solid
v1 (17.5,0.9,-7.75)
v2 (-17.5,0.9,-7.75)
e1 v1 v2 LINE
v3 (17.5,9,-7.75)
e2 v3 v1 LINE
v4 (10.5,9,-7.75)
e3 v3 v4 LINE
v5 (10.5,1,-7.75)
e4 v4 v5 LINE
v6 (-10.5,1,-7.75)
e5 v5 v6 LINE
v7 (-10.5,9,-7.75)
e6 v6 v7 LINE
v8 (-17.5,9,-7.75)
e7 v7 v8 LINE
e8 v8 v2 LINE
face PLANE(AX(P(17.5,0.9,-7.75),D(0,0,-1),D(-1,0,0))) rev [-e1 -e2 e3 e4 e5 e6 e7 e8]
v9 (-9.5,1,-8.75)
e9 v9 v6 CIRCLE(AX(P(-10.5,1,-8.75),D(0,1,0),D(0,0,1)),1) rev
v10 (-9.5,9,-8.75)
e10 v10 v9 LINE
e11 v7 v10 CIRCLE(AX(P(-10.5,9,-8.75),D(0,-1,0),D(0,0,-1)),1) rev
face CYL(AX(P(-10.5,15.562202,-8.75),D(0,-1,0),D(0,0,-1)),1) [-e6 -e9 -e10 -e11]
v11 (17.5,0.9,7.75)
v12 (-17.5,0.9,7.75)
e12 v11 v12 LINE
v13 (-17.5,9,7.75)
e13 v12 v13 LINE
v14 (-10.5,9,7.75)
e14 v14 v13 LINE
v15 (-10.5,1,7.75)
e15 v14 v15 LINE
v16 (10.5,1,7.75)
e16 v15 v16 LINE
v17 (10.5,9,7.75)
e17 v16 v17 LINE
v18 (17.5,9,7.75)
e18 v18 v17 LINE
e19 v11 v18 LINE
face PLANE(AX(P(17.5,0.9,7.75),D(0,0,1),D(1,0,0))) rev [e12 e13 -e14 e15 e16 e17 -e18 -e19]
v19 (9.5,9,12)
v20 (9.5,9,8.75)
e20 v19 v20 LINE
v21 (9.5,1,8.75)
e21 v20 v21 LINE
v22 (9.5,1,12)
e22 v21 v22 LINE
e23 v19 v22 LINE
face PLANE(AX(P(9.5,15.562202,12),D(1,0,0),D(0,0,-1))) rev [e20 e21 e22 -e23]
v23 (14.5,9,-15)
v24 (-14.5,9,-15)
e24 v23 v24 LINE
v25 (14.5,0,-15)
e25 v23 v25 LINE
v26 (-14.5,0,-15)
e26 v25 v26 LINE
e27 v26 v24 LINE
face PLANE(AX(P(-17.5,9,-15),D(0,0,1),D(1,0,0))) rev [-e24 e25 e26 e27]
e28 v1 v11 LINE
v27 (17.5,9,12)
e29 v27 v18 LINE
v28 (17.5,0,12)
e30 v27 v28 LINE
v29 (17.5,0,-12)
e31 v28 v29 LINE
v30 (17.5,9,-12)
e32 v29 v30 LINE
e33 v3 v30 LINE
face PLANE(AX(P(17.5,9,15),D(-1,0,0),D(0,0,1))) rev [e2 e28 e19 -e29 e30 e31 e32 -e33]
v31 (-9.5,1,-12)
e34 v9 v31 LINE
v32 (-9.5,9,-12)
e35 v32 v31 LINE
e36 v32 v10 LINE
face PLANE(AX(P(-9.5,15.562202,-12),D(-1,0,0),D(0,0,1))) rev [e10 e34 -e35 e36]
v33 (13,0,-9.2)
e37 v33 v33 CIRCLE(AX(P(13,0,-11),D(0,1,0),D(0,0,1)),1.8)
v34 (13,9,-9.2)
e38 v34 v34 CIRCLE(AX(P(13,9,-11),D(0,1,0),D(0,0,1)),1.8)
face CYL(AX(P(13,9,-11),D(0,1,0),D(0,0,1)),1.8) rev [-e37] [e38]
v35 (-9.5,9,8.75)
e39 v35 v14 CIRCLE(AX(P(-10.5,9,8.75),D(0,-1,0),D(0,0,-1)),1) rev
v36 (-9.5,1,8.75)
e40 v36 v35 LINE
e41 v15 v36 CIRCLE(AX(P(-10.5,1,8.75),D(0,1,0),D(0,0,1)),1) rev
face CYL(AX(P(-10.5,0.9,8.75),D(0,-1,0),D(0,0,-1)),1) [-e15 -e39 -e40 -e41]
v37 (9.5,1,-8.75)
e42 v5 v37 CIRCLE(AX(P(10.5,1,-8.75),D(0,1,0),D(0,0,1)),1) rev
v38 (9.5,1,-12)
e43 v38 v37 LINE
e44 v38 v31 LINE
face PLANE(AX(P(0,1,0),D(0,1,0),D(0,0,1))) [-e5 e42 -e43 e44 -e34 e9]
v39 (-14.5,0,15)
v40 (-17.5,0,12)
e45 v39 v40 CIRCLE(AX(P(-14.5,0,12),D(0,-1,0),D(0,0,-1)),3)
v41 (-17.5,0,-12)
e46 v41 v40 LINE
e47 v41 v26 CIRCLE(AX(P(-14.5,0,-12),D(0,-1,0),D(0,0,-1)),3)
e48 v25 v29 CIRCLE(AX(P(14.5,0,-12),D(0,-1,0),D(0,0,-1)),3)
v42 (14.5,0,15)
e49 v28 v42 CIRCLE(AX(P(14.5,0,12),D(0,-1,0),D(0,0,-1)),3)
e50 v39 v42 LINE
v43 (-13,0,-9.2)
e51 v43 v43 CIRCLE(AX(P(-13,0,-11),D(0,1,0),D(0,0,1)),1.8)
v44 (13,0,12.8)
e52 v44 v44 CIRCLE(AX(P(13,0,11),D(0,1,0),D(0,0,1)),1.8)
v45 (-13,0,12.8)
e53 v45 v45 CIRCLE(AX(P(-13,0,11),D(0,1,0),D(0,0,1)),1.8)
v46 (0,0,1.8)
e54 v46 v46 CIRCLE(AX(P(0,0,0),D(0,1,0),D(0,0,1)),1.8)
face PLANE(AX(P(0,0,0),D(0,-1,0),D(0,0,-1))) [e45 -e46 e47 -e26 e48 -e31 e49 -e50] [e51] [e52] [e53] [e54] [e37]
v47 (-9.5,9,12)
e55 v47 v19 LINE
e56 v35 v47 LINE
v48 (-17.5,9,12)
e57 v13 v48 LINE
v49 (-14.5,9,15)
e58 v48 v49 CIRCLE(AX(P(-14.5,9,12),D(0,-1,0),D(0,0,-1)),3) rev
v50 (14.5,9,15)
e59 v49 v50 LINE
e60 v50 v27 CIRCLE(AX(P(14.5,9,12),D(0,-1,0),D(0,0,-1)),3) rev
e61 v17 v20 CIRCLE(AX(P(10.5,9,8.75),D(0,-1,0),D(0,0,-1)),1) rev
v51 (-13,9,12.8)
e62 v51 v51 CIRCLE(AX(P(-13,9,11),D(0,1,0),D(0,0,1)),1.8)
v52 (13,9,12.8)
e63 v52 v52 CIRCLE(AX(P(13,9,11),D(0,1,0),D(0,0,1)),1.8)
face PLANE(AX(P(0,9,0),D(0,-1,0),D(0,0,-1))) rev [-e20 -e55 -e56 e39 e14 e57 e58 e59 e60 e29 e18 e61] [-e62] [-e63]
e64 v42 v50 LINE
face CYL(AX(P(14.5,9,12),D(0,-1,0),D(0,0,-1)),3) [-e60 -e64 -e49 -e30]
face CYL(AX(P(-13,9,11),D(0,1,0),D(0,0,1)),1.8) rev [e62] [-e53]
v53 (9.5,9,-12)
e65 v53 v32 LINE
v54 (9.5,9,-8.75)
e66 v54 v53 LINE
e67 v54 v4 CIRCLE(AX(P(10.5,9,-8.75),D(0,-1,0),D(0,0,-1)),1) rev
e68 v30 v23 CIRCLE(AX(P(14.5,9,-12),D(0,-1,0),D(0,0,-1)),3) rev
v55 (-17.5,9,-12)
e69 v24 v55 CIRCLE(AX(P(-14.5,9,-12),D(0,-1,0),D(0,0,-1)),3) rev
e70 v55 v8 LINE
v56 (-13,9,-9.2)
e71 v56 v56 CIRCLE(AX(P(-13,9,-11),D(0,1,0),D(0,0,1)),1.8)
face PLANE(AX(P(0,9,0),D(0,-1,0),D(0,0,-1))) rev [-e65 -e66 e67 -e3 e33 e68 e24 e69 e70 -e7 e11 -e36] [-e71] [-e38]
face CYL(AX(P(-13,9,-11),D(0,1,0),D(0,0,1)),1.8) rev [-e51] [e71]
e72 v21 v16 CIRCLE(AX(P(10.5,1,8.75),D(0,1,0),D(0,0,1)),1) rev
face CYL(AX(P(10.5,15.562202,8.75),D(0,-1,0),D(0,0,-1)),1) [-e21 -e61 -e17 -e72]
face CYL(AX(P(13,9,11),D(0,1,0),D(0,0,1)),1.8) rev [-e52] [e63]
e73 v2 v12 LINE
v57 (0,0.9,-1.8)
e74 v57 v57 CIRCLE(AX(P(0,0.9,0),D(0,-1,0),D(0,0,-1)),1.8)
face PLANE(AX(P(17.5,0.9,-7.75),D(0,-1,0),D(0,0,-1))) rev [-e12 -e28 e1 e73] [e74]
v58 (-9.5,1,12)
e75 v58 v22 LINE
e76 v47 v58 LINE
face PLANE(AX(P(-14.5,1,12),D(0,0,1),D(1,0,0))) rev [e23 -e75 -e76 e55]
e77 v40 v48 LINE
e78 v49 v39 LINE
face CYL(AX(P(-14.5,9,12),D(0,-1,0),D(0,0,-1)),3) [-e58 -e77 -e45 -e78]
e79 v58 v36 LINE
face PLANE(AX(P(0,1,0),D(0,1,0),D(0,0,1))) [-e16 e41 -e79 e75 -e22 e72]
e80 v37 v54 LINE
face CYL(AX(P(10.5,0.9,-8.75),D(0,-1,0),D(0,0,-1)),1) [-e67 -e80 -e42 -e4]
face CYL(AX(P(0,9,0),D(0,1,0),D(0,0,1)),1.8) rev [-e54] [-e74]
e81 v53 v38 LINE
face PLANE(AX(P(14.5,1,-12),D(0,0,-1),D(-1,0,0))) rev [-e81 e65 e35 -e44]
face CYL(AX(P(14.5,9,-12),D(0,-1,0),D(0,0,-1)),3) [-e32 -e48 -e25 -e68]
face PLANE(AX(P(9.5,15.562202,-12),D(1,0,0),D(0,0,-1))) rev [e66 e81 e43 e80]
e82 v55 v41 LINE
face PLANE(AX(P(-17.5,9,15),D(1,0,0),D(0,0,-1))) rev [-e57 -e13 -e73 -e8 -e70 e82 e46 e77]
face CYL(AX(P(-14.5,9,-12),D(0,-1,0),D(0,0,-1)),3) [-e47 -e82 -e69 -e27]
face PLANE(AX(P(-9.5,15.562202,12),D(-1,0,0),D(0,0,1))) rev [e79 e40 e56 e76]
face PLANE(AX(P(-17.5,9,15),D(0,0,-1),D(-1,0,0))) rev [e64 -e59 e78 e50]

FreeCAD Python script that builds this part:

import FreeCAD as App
import Part
import Sketcher
Q = App.Units.Quantity


def edges_at(feature, points):
    """Names of the edges that pass closest to the given points."""
    edges = feature.Shape.Edges
    near = lambda p: min(range(len(edges)), key=lambda i: edges[i].distToShape(Part.Vertex(*p))[0])
    return sorted({f"Edge{near(p) + 1}" for p in points})

doc = App.newDocument("Part")
body = doc.addObject("PartDesign::Body", "Body")

# Sketch on XZ plane
sketch1 = doc.addObject("Sketcher::SketchObject", "Sketch")
body.addObject(sketch1)
sketch1.AttachmentSupport = (doc.XZ_Plane, [""])
sketch1.MapMode = "FlatFace"
sketch1.addGeometry(Part.LineSegment(App.Vector(-18, -15, 0), App.Vector(-18, 15, 0)), False)
sketch1.addGeometry(Part.LineSegment(App.Vector(-18, 15, 0), App.Vector(18, 15, 0)), False)
sketch1.addGeometry(Part.LineSegment(App.Vector(18, 15, 0), App.Vector(18, -15, 0)), False)
sketch1.addGeometry(Part.LineSegment(App.Vector(18, -15, 0), App.Vector(-18, -15, 0)), False)
sketch1.addConstraint(Sketcher.Constraint("Coincident", 0, 2, 1, 1))
sketch1.addConstraint(Sketcher.Constraint("Coincident", 1, 2, 2, 1))
sketch1.addConstraint(Sketcher.Constraint("Coincident", 2, 2, 3, 1))
sketch1.addConstraint(Sketcher.Constraint("Coincident", 3, 2, 0, 1))
sketch1.addConstraint(Sketcher.Constraint("Vertical", 0))
sketch1.addConstraint(Sketcher.Constraint("Horizontal", 1))
sketch1.addConstraint(Sketcher.Constraint("Vertical", 2))
sketch1.addConstraint(Sketcher.Constraint("Horizontal", 3))
sketch1.addConstraint(Sketcher.Constraint("Symmetric", 0, 2, 2, 2, -1, 1))
sketch1.addConstraint(Sketcher.Constraint("DistanceX", 1, 1, 1, 2, Q("35 mm")))
sketch1.addConstraint(Sketcher.Constraint("DistanceY", 0, 1, 0, 2, Q("30 mm")))
pad1 = doc.addObject("PartDesign::Pad", "Pad")
body.addObject(pad1)
pad1.Profile = sketch1
pad1.Length = 9
pad1.Reversed = True

# Sketch on XZ plane
sketch2 = doc.addObject("Sketcher::SketchObject", "Sketch001")
body.addObject(sketch2)
sketch2.AttachmentSupport = (doc.XZ_Plane, [""])
sketch2.MapMode = "FlatFace"
sketch2.AttachmentOffset = App.Placement(App.Vector(0, 0, -9), App.Rotation())
sketch2.addGeometry(Part.LineSegment(App.Vector(-14, -12, 0), App.Vector(-14, 12, 0)), False)
sketch2.addGeometry(Part.LineSegment(App.Vector(-14, 12, 0), App.Vector(14, 12, 0)), False)
sketch2.addGeometry(Part.LineSegment(App.Vector(14, 12, 0), App.Vector(14, -12, 0)), False)
sketch2.addGeometry(Part.LineSegment(App.Vector(14, -12, 0), App.Vector(-14, -12, 0)), False)
sketch2.addConstraint(Sketcher.Constraint("Coincident", 0, 2, 1, 1))
sketch2.addConstraint(Sketcher.Constraint("Coincident", 1, 2, 2, 1))
sketch2.addConstraint(Sketcher.Constraint("Coincident", 2, 2, 3, 1))
sketch2.addConstraint(Sketcher.Constraint("Coincident", 3, 2, 0, 1))
sketch2.addConstraint(Sketcher.Constraint("Vertical", 0))
sketch2.addConstraint(Sketcher.Constraint("Horizontal", 1))
sketch2.addConstraint(Sketcher.Constraint("Vertical", 2))
sketch2.addConstraint(Sketcher.Constraint("Horizontal", 3))
sketch2.addConstraint(Sketcher.Constraint("Symmetric", 0, 2, 2, 2, -1, 1))
sketch2.addConstraint(Sketcher.Constraint("DistanceX", 1, 1, 1, 2, Q("29 mm")))
sketch2.addConstraint(Sketcher.Constraint("DistanceY", 0, 1, 0, 2, Q("24 mm")))
pocket1 = doc.addObject("PartDesign::Pocket", "Pocket")
body.addObject(pocket1)
pocket1.Profile = sketch2
pocket1.Length = 8
pocket1.Reversed = True

# Sketch on YZ plane
sketch3 = doc.addObject("Sketcher::SketchObject", "Sketch002")
body.addObject(sketch3)
sketch3.AttachmentSupport = (doc.YZ_Plane, [""])
sketch3.MapMode = "FlatFace"
sketch3.AttachmentOffset = App.Placement(App.Vector(0, 0, -17.5), App.Rotation())
sketch3.addGeometry(Part.LineSegment(App.Vector(9, -8, 0), App.Vector(1, -8, 0)), False)
sketch3.addGeometry(Part.LineSegment(App.Vector(1, -8, 0), App.Vector(1, 8, 0)), False)
sketch3.addGeometry(Part.LineSegment(App.Vector(1, 8, 0), App.Vector(9, 8, 0)), False)
sketch3.addGeometry(Part.LineSegment(App.Vector(9, 8, 0), App.Vector(9, -8, 0)), False)
sketch3.addConstraint(Sketcher.Constraint("Coincident", 0, 2, 1, 1))
sketch3.addConstraint(Sketcher.Constraint("Coincident", 1, 2, 2, 1))
sketch3.addConstraint(Sketcher.Constraint("Coincident", 2, 2, 3, 1))
sketch3.addConstraint(Sketcher.Constraint("Coincident", 3, 2, 0, 1))
sketch3.addConstraint(Sketcher.Constraint("Horizontal", 0))
sketch3.addConstraint(Sketcher.Constraint("Vertical", 1))
sketch3.addConstraint(Sketcher.Constraint("Horizontal", 2))
sketch3.addConstraint(Sketcher.Constraint("Vertical", 3))
sketch3.addConstraint(Sketcher.Constraint("DistanceX", 0, 2, 0, 1, Q("8.1 mm")))
sketch3.addConstraint(Sketcher.Constraint("DistanceY", 1, 1, 1, 2, Q("15.5 mm")))
sketch3.addConstraint(Sketcher.Constraint("DistanceX", -1, 1, 2, 2, Q("9 mm")))
sketch3.addConstraint(Sketcher.Constraint("DistanceY", 0, 2, -1, 1, Q("7.75 mm")))
pocket2 = doc.addObject("PartDesign::Pocket", "Pocket001")
body.addObject(pocket2)
pocket2.Profile = sketch3
pocket2.Type = "ThroughAll"
pocket2.Reversed = True

# Sketch on XZ plane
sketch4 = doc.addObject("Sketcher::SketchObject", "Sketch003")
body.addObject(sketch4)
sketch4.AttachmentSupport = (doc.XZ_Plane, [""])
sketch4.MapMode = "FlatFace"
sketch4.AttachmentOffset = App.Placement(App.Vector(0, 0, -1), App.Rotation())
sketch4.addGeometry(Part.LineSegment(App.Vector(-14.5, -12, 0), App.Vector(-14.5, -7.8, 0)), False)
sketch4.addGeometry(Part.LineSegment(App.Vector(-14.5, -7.8, 0), App.Vector(-9.5, -7.8, 0)), False)
sketch4.addGeometry(Part.LineSegment(App.Vector(-9.5, -7.8, 0), App.Vector(-9.5, -12, 0)), False)
sketch4.addGeometry(Part.LineSegment(App.Vector(-9.5, -12, 0), App.Vector(-14.5, -12, 0)), False)
sketch4.addGeometry(Part.LineSegment(App.Vector(9.5, -12, 0), App.Vector(9.5, -7.8, 0)), False)
sketch4.addGeometry(Part.LineSegment(App.Vector(9.5, -7.8, 0), App.Vector(14.5, -7.8, 0)), False)
sketch4.addGeometry(Part.LineSegment(App.Vector(14.5, -7.8, 0), App.Vector(14.5, -12, 0)), False)
sketch4.addGeometry(Part.LineSegment(App.Vector(14.5, -12, 0), App.Vector(9.5, -12, 0)), False)
sketch4.addGeometry(Part.LineSegment(App.Vector(9.5, 7.8, 0), App.Vector(9.5, 12, 0)), False)
sketch4.addGeometry(Part.LineSegment(App.Vector(9.5, 12, 0), App.Vector(14.5, 12, 0)), False)
sketch4.addGeometry(Part.LineSegment(App.Vector(14.5, 12, 0), App.Vector(14.5, 7.8, 0)), False)
sketch4.addGeometry(Part.LineSegment(App.Vector(14.5, 7.8, 0), App.Vector(9.5, 7.8, 0)), False)
sketch4.addGeometry(Part.LineSegment(App.Vector(-14.5, 7.8, 0), App.Vector(-14.5, 12, 0)), False)
sketch4.addGeometry(Part.LineSegment(App.Vector(-14.5, 12, 0), App.Vector(-9.5, 12, 0)), False)
sketch4.addGeometry(Part.LineSegment(App.Vector(-9.5, 12, 0), App.Vector(-9.5, 7.8, 0)), False)
sketch4.addGeometry(Part.LineSegment(App.Vector(-9.5, 7.8, 0), App.Vector(-14.5, 7.8, 0)), False)
sketch4.addConstraint(Sketcher.Constraint("Coincident", 0, 2, 1, 1))
sketch4.addConstraint(Sketcher.Constraint("Coincident", 1, 2, 2, 1))
sketch4.addConstraint(Sketcher.Constraint("Coincident", 2, 2, 3, 1))
sketch4.addConstraint(Sketcher.Constraint("Coincident", 3, 2, 0, 1))
sketch4.addConstraint(Sketcher.Constraint("Coincident", 4, 2, 5, 1))
sketch4.addConstraint(Sketcher.Constraint("Coincident", 5, 2, 6, 1))
sketch4.addConstraint(Sketcher.Constraint("Coincident", 6, 2, 7, 1))
sketch4.addConstraint(Sketcher.Constraint("Coincident", 7, 2, 4, 1))
sketch4.addConstraint(Sketcher.Constraint("Coincident", 8, 2, 9, 1))
sketch4.addConstraint(Sketcher.Constraint("Coincident", 9, 2, 10, 1))
sketch4.addConstraint(Sketcher.Constraint("Coincident", 10, 2, 11, 1))
sketch4.addConstraint(Sketcher.Constraint("Coincident", 11, 2, 8, 1))
sketch4.addConstraint(Sketcher.Constraint("Coincident", 12, 2, 13, 1))
sketch4.addConstraint(Sketcher.Constraint("Coincident", 13, 2, 14, 1))
sketch4.addConstraint(Sketcher.Constraint("Coincident", 14, 2, 15, 1))
sketch4.addConstraint(Sketcher.Constraint("Coincident", 15, 2, 12, 1))
sketch4.addConstraint(Sketcher.Constraint("Vertical", 0))
sketch4.addConstraint(Sketcher.Constraint("Horizontal", 1))
sketch4.addConstraint(Sketcher.Constraint("Vertical", 2))
sketch4.addConstraint(Sketcher.Constraint("Horizontal", 3))
sketch4.addConstraint(Sketcher.Constraint("Vertical", 4))
sketch4.addConstraint(Sketcher.Constraint("Horizontal", 5))
sketch4.addConstraint(Sketcher.Constraint("Vertical", 6))
sketch4.addConstraint(Sketcher.Constraint("Horizontal", 7))
sketch4.addConstraint(Sketcher.Constraint("Vertical", 8))
sketch4.addConstraint(Sketcher.Constraint("Horizontal", 9))
sketch4.addConstraint(Sketcher.Constraint("Vertical", 10))
sketch4.addConstraint(Sketcher.Constraint("Horizontal", 11))
sketch4.addConstraint(Sketcher.Constraint("Vertical", 12))
sketch4.addConstraint(Sketcher.Constraint("Horizontal", 13))
sketch4.addConstraint(Sketcher.Constraint("Vertical", 14))
sketch4.addConstraint(Sketcher.Constraint("Horizontal", 15))
sketch4.addConstraint(Sketcher.Constraint("Symmetric", 2, 2, 8, 2, -1, 1))
sketch4.addConstraint(Sketcher.Constraint("Symmetric", 0, 2, 10, 2, -1, 1))
sketch4.addConstraint(Sketcher.Constraint("Symmetric", 6, 2, 12, 2, -1, 1))
sketch4.addConstraint(Sketcher.Constraint("Symmetric", 4, 2, 14, 2, -1, 1))
sketch4.addConstraint(Sketcher.Constraint("Symmetric", 1, 2, 4, 2, -2))
sketch4.addConstraint(Sketcher.Constraint("Symmetric", 3, 2, 6, 2, -2))
sketch4.addConstraint(Sketcher.Constraint("DistanceX", 1, 1, 1, 2, Q("5 mm")))
sketch4.addConstraint(Sketcher.Constraint("DistanceY", 2, 2, -1, 1, Q("12 mm")))
sketch4.addConstraint(Sketcher.Constraint("DistanceX", 1, 2, 4, 2, Q("19 mm")))
sketch4.addConstraint(Sketcher.Constraint("DistanceY", 0, 1, 0, 2, Q("4.25 mm")))
pad2 = doc.addObject("PartDesign::Pad", "Pad001")
body.addObject(pad2)
pad2.Profile = sketch4
pad2.Length = 8
pad2.Reversed = True

# Sketch on XZ plane
sketch5 = doc.addObject("Sketcher::SketchObject", "Sketch004")
body.addObject(sketch5)
sketch5.AttachmentSupport = (doc.XZ_Plane, [""])
sketch5.MapMode = "FlatFace"
sketch5.AttachmentOffset = App.Placement(App.Vector(0, 0, -9), App.Rotation())
sketch5.addGeometry(Part.Circle(App.Vector(0, 0, 0), App.Vector(0, 0, 1), 1.8), False)
sketch5.addGeometry(Part.Circle(App.Vector(13, -11, 0), App.Vector(0, 0, 1), 1.8), False)
sketch5.addGeometry(Part.Circle(App.Vector(-13, 11, 0), App.Vector(0, 0, 1), 1.8), False)
sketch5.addGeometry(Part.Circle(App.Vector(-13, -11, 0), App.Vector(0, 0, 1), 1.8), False)
sketch5.addGeometry(Part.Circle(App.Vector(13, 11, 0), App.Vector(0, 0, 1), 1.8), False)
sketch5.addConstraint(Sketcher.Constraint("Coincident", 0, 3, -1, 1))
sketch5.addConstraint(Sketcher.Constraint("Equal", 0, 1))
sketch5.addConstraint(Sketcher.Constraint("Equal", 1, 2))
sketch5.addConstraint(Sketcher.Constraint("Equal", 2, 3))
sketch5.addConstraint(Sketcher.Constraint("Equal", 3, 4))
sketch5.addConstraint(Sketcher.Constraint("Symmetric", 1, 3, 2, 3, -1, 1))
sketch5.addConstraint(Sketcher.Constraint("Symmetric", 3, 3, 4, 3, -1, 1))
sketch5.addConstraint(Sketcher.Constraint("Symmetric", 1, 3, 3, 3, -2))
sketch5.addConstraint(Sketcher.Constraint("Diameter", 0, Q("3.6 mm")))
sketch5.addConstraint(Sketcher.Constraint("DistanceX", -1, 1, 1, 3, Q("13 mm")))
sketch5.addConstraint(Sketcher.Constraint("DistanceY", 1, 3, -1, 1, Q("11 mm")))
doc.recompute()
hole = doc.addObject("PartDesign::Hole", "Hole")
body.addObject(hole)
hole.Profile = sketch5
hole.ThreadType = "None"
hole.Diameter = 3.6
hole.DepthType = "ThroughAll"
hole.Reversed = True
doc.recompute()

fillet = doc.addObject("PartDesign::Fillet", "Fillet")
body.addObject(fillet)
fillet.Base = (hole, edges_at(hole, [
    (17.5, 4.5, 15),
    (-17.5, 4.5, 15),
    (-17.5, 4.5, -15),
    (17.5, 4.5, -15),
]))
fillet.Radius = 3
doc.recompute()

fillet2 = doc.addObject("PartDesign::Fillet", "Fillet001")
body.addObject(fillet2)
fillet2.Base = (fillet, edges_at(fillet, [
    (-9.5, 5, -7.75),
    (9.5, 5, -7.75),
    (9.5, 5, 7.75),
    (-9.5, 5, 7.75),
]))
fillet2.Radius = 1

doc.recompute()
